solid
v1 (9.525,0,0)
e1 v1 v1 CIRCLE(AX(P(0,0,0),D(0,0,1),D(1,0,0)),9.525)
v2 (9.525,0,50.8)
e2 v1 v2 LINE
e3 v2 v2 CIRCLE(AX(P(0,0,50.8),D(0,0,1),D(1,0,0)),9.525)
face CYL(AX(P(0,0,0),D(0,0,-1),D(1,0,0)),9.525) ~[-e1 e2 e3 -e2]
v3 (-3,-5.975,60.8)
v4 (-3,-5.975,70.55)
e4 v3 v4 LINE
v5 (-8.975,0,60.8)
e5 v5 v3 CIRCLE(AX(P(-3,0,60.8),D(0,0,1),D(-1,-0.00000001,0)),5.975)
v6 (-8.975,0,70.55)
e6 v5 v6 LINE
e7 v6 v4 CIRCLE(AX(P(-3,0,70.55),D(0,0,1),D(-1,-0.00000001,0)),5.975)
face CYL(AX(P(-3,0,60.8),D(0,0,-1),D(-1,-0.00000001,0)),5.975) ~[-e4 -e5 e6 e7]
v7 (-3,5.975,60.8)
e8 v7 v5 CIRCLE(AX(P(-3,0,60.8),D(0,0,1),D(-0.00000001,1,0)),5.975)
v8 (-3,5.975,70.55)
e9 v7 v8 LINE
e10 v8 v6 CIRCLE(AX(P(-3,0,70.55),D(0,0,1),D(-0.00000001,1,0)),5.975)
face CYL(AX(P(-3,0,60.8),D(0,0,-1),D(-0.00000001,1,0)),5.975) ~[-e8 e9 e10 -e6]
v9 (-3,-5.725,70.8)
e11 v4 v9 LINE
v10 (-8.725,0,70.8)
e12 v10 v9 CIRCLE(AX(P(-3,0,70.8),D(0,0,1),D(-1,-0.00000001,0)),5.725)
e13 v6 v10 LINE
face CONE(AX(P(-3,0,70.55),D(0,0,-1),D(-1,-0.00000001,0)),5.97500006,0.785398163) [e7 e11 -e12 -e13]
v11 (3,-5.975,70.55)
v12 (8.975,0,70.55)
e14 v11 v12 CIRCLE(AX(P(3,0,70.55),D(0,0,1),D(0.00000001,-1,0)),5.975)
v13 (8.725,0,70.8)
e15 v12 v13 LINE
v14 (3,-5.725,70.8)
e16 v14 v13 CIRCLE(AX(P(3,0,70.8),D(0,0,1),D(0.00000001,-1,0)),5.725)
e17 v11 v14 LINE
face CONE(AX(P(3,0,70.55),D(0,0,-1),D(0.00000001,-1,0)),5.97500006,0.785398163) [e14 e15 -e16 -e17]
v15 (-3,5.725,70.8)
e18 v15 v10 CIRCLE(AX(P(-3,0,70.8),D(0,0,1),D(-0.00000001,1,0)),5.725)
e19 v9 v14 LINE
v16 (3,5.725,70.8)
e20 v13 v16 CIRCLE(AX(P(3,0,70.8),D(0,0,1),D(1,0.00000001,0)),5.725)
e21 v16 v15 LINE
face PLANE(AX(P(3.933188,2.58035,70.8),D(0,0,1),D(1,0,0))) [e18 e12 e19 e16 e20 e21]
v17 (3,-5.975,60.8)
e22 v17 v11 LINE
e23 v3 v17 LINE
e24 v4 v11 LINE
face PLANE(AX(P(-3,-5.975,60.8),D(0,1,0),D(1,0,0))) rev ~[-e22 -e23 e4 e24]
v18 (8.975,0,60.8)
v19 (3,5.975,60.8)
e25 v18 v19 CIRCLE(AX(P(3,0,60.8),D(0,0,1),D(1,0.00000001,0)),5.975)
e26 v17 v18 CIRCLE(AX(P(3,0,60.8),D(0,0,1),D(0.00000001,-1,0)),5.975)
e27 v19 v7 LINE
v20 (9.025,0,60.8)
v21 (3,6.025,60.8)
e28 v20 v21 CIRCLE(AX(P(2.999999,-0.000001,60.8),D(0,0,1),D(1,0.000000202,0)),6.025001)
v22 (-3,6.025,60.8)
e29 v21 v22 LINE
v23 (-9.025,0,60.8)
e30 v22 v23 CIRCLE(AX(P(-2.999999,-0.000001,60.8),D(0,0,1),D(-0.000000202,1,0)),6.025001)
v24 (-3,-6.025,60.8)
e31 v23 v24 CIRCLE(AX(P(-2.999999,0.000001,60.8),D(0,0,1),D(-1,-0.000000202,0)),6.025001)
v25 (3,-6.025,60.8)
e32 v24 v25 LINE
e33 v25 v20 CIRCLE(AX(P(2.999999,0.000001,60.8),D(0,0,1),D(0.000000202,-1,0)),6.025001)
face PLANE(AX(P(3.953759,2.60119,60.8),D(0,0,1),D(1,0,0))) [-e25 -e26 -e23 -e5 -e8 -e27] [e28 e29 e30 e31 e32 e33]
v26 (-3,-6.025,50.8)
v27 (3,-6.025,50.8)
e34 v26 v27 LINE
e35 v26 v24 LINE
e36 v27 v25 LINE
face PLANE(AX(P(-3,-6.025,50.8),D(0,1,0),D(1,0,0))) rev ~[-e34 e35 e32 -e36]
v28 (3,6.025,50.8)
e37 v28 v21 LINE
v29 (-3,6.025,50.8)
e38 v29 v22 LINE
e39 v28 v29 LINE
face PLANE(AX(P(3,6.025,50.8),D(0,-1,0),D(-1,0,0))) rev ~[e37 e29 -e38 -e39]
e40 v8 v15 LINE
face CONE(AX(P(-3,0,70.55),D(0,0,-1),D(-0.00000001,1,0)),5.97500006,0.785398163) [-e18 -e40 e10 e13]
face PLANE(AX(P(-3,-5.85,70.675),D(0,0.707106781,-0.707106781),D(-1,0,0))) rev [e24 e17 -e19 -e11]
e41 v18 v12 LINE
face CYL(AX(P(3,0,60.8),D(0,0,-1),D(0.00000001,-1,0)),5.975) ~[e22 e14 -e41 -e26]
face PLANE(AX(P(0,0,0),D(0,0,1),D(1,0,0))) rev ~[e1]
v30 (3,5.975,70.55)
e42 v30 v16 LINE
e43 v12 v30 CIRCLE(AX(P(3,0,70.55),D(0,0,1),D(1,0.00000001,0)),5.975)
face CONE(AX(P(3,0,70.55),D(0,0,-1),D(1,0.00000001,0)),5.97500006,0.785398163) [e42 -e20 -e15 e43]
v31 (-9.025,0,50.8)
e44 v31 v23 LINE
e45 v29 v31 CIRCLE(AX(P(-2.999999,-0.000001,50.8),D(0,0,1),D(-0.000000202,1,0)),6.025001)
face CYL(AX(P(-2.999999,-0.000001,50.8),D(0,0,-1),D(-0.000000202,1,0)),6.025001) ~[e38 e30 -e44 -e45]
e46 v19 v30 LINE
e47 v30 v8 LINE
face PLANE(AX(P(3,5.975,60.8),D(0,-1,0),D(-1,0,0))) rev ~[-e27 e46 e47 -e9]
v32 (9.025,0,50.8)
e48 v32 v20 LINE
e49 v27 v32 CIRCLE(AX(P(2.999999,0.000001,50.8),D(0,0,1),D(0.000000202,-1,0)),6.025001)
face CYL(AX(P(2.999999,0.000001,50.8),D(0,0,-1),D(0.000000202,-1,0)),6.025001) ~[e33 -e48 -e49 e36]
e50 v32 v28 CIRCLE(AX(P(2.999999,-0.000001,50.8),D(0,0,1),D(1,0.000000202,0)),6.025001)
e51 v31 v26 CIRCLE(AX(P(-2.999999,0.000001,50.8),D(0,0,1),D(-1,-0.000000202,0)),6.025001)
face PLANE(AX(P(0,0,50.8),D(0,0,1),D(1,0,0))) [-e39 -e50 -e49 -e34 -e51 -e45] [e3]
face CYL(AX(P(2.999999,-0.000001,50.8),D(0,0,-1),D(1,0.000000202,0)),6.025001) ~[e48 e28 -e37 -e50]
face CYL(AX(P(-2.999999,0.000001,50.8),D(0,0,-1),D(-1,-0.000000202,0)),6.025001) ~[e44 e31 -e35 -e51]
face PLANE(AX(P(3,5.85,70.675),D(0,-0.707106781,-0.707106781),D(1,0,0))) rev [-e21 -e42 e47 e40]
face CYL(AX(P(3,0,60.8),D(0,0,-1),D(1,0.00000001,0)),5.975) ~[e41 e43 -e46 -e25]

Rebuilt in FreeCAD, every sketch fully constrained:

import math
import FreeCAD as App
import Part
import Sketcher

V = App.Vector
Q = App.Units.Quantity


def edges_at(feature, points):
    """Names of the edges that pass closest to the given points."""
    edges = feature.Shape.Edges
    near = lambda p: min(range(len(edges)), key=lambda i: edges[i].distToShape(Part.Vertex(*p))[0])
    return sorted({f"Edge{near(p) + 1}" for p in points})

doc = App.newDocument("Part")
body = doc.addObject("PartDesign::Body", "Body")

# Sketch on XY plane
sketch1 = doc.addObject("Sketcher::SketchObject", "Sketch")
body.addObject(sketch1)
sketch1.AttachmentSupport = (doc.XY_Plane, [""])
sketch1.MapMode = "FlatFace"
sketch1.addGeometry(Part.Circle(V(0, 0, 0), V(0, 0, 1), 10), False)
sketch1.addConstraint(Sketcher.Constraint("Coincident", 0, 3, -1, 1))
sketch1.addConstraint(Sketcher.Constraint("Diameter", 0, Q("19.05 mm")))
pad1 = doc.addObject("PartDesign::Pad", "Pad")
body.addObject(pad1)
pad1.Profile = sketch1
pad1.Length = 50.8

# Sketch on XY plane
sketch2 = doc.addObject("Sketcher::SketchObject", "Sketch001")
body.addObject(sketch2)
sketch2.AttachmentSupport = (doc.XY_Plane, [""])
sketch2.MapMode = "FlatFace"
sketch2.AttachmentOffset = App.Placement(V(0, 0, 50.8), App.Rotation())
sketch2.addGeometry(Part.ArcOfCircle(Part.Circle(V(3, 0, 0), V(0, 0, 1), 6), math.radians(0), math.radians(90)), False)
sketch2.addGeometry(Part.LineSegment(V(3, 6, 0), V(-3, 6, 0)), False)
sketch2.addGeometry(Part.ArcOfCircle(Part.Circle(V(-3, 0, 0), V(0, 0, 1), 6), math.radians(90), math.radians(180)), False)
sketch2.addGeometry(Part.ArcOfCircle(Part.Circle(V(-3, 0, 0), V(0, 0, 1), 6), math.radians(-180), math.radians(-90)), False)
sketch2.addGeometry(Part.LineSegment(V(-3, -6, 0), V(3, -6, 0)), False)
sketch2.addGeometry(Part.ArcOfCircle(Part.Circle(V(3, 0, 0), V(0, 0, 1), 6), math.radians(-90), math.radians(0)), False)
sketch2.addConstraint(Sketcher.Constraint("Tangent", 0, 2, 1, 1))
sketch2.addConstraint(Sketcher.Constraint("Tangent", 1, 2, 2, 1))
sketch2.addConstraint(Sketcher.Constraint("Tangent", 2, 2, 3, 1))
sketch2.addConstraint(Sketcher.Constraint("Tangent", 3, 2, 4, 1))
sketch2.addConstraint(Sketcher.Constraint("Tangent", 4, 2, 5, 1))
sketch2.addConstraint(Sketcher.Constraint("Tangent", 5, 2, 0, 1))
sketch2.addConstraint(Sketcher.Constraint("Horizontal", 1))
sketch2.addConstraint(Sketcher.Constraint("Horizontal", 4))
sketch2.addConstraint(Sketcher.Constraint("Equal", 0, 2))
sketch2.addConstraint(Sketcher.Constraint("Equal", 2, 3))
sketch2.addConstraint(Sketcher.Constraint("Symmetric", 0, 3, 2, 3, -1, 1))
sketch2.addConstraint(Sketcher.Constraint("PointOnObject", 2, 2, -1))
sketch2.addConstraint(Sketcher.Constraint("PointOnObject", 5, 2, -1))
sketch2.addConstraint(Sketcher.Constraint("DistanceX", 1, 2, 1, 1, Q("6 mm")))
sketch2.addConstraint(Sketcher.Constraint("Radius", 0, Q("6.025001 mm")))
pad2 = doc.addObject("PartDesign::Pad", "Pad001")
body.addObject(pad2)
pad2.Profile = sketch2
pad2.Length = 10

# Sketch on XY plane
sketch3 = doc.addObject("Sketcher::SketchObject", "Sketch002")
body.addObject(sketch3)
sketch3.AttachmentSupport = (doc.XY_Plane, [""])
sketch3.MapMode = "FlatFace"
sketch3.AttachmentOffset = App.Placement(V(0, 0, 60.8), App.Rotation())
sketch3.addGeometry(Part.ArcOfCircle(Part.Circle(V(3, 0, 0), V(0, 0, 1), 6), math.radians(0), math.radians(90)), False)
sketch3.addGeometry(Part.LineSegment(V(3, 6, 0), V(-3, 6, 0)), False)
sketch3.addGeometry(Part.ArcOfCircle(Part.Circle(V(-3, 0, 0), V(0, 0, 1), 6), math.radians(90), math.radians(180)), False)
sketch3.addGeometry(Part.ArcOfCircle(Part.Circle(V(-3, 0, 0), V(0, 0, 1), 6), math.radians(-180), math.radians(-90)), False)
sketch3.addGeometry(Part.LineSegment(V(-3, -6, 0), V(3, -6, 0)), False)
sketch3.addGeometry(Part.ArcOfCircle(Part.Circle(V(3, 0, 0), V(0, 0, 1), 6), math.radians(-90), math.radians(0)), False)
sketch3.addConstraint(Sketcher.Constraint("Tangent", 0, 2, 1, 1))
sketch3.addConstraint(Sketcher.Constraint("Tangent", 1, 2, 2, 1))
sketch3.addConstraint(Sketcher.Constraint("Tangent", 2, 2, 3, 1))
sketch3.addConstraint(Sketcher.Constraint("Tangent", 3, 2, 4, 1))
sketch3.addConstraint(Sketcher.Constraint("Tangent", 4, 2, 5, 1))
sketch3.addConstraint(Sketcher.Constraint("Tangent", 5, 2, 0, 1))
sketch3.addConstraint(Sketcher.Constraint("Horizontal", 1))
sketch3.addConstraint(Sketcher.Constraint("Horizontal", 4))
sketch3.addConstraint(Sketcher.Constraint("Equal", 0, 2))
sketch3.addConstraint(Sketcher.Constraint("Equal", 2, 3))
sketch3.addConstraint(Sketcher.Constraint("Symmetric", 0, 3, 2, 3, -1, 1))
sketch3.addConstraint(Sketcher.Constraint("PointOnObject", 2, 2, -1))
sketch3.addConstraint(Sketcher.Constraint("PointOnObject", 5, 2, -1))
sketch3.addConstraint(Sketcher.Constraint("DistanceX", 1, 2, 1, 1, Q("6 mm")))
sketch3.addConstraint(Sketcher.Constraint("Radius", 0, Q("5.975 mm")))
pad3 = doc.addObject("PartDesign::Pad", "Pad002")
body.addObject(pad3)
pad3.Profile = sketch3
pad3.Length = 10
doc.recompute()

chamfer = doc.addObject("PartDesign::Chamfer", "Chamfer")
body.addObject(chamfer)
chamfer.Base = (pad3, edges_at(pad3, [(0, -5.975, 70.8)]))
chamfer.Size = 0.25

doc.recompute()
